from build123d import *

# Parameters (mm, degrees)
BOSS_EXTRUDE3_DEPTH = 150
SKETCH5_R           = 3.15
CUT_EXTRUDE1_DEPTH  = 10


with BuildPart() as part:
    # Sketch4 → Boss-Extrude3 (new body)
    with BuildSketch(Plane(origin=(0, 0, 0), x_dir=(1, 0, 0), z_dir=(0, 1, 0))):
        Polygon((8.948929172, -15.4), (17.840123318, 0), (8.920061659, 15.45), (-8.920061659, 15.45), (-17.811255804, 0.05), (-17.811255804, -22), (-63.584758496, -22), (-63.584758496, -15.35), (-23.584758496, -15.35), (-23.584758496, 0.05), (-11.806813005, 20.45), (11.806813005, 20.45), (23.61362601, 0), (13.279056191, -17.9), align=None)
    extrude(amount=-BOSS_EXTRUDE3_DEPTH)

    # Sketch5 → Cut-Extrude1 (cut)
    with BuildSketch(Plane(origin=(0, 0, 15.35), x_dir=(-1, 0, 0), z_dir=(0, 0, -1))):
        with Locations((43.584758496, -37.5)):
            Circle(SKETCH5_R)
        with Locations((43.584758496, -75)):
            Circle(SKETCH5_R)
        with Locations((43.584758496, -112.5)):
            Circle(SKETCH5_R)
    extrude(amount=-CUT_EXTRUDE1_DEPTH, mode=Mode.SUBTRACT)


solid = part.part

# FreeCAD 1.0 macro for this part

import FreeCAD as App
import Part
import Sketcher
from FreeCAD import Vector
Q = App.Units.Quantity

doc = App.newDocument("Part")
body = doc.addObject("PartDesign::Body", "Body")

# Sketch on XZ plane
sketch1 = body.newObject("Sketcher::SketchObject", "Sketch")
sketch1.AttachmentSupport = (doc.getObject("XZ_Plane"), [""])
sketch1.MapMode = "FlatFace"
sketch1.addGeometry([
    Part.LineSegment(Vector(18, 0, 0), Vector(9, 15, 0)),  # 0
    Part.LineSegment(Vector(9, 15, 0), Vector(13, 18, 0)),  # 1
    Part.LineSegment(Vector(13, 18, 0), Vector(24, 0, 0)),  # 2
    Part.LineSegment(Vector(24, 0, 0), Vector(12, -20, 0)),  # 3
    Part.LineSegment(Vector(12, -20, 0), Vector(-12, -20, 0)),  # 4
    Part.LineSegment(Vector(-12, -20, 0), Vector(-24, 0, 0)),  # 5
    Part.LineSegment(Vector(-24, 0, 0), Vector(-24, 15, 0)),  # 6
    Part.LineSegment(Vector(-24, 15, 0), Vector(-64, 15, 0)),  # 7
    Part.LineSegment(Vector(-64, 15, 0), Vector(-64, 22, 0)),  # 8
    Part.LineSegment(Vector(-64, 22, 0), Vector(-18, 22, 0)),  # 9
    Part.LineSegment(Vector(-18, 22, 0), Vector(-18, 0, 0)),  # 10
    Part.LineSegment(Vector(-18, 0, 0), Vector(-9, -15, 0)),  # 11
    Part.LineSegment(Vector(-9, -15, 0), Vector(9, -15, 0)),  # 12
    Part.LineSegment(Vector(9, -15, 0), Vector(18, 0, 0)),  # 13
], False)
sketch1.addConstraint([
    Sketcher.Constraint("Coincident", 0, 2, 1, 1),
    Sketcher.Constraint("Coincident", 1, 2, 2, 1),
    Sketcher.Constraint("Coincident", 2, 2, 3, 1),
    Sketcher.Constraint("Coincident", 3, 2, 4, 1),
    Sketcher.Constraint("Coincident", 4, 2, 5, 1),
    Sketcher.Constraint("Coincident", 5, 2, 6, 1),
    Sketcher.Constraint("Coincident", 6, 2, 7, 1),
    Sketcher.Constraint("Coincident", 7, 2, 8, 1),
    Sketcher.Constraint("Coincident", 8, 2, 9, 1),
    Sketcher.Constraint("Coincident", 9, 2, 10, 1),
    Sketcher.Constraint("Coincident", 10, 2, 11, 1),
    Sketcher.Constraint("Coincident", 11, 2, 12, 1),
    Sketcher.Constraint("Coincident", 12, 2, 13, 1),
    Sketcher.Constraint("Coincident", 13, 2, 0, 1),
    Sketcher.Constraint("Horizontal", 4),
    Sketcher.Constraint("Vertical", 6),
    Sketcher.Constraint("Horizontal", 7),
    Sketcher.Constraint("Vertical", 8),
    Sketcher.Constraint("Horizontal", 9),
    Sketcher.Constraint("Vertical", 10),
    Sketcher.Constraint("Horizontal", 12),
    Sketcher.Constraint("PointOnObject", 2, 2, -1),
    Sketcher.Constraint("PointOnObject", 13, 2, -1),
    Sketcher.Constraint("Perpendicular", 0, 1),
    Sketcher.Constraint("Perpendicular", 1, 2),
    Sketcher.Constraint("Parallel", 2, 5),
    Sketcher.Constraint("Parallel", 5, 11),
    Sketcher.Constraint("Parallel", 3, 13),
    Sketcher.Constraint("Horizontal", 5, 2, 10, 2),
    Sketcher.Constraint("Equal", 0, 11),
    Sketcher.Constraint("DistanceX", 7, 2, 7, 1, Q("40 mm")),
    Sketcher.Constraint("Angle", 0, Q("120 deg")),
    Sketcher.Constraint("Angle", 3, Q("-120 deg")),
    Sketcher.Constraint("Distance", 1, Q("5 mm")),
    Sketcher.Constraint("DistanceY", 6, 1, 6, 2, Q("15.4 mm")),
    Sketcher.Constraint("DistanceY", -1, 1, 8, 2, Q("22 mm")),
    Sketcher.Constraint("DistanceY", 4, 2, 11, 2, Q("5 mm")),
    Sketcher.Constraint("DistanceY", 8, 1, 8, 2, Q("6.65 mm")),
    Sketcher.Constraint("DistanceY", -1, 1, 0, 2, Q("15.4 mm")),
    Sketcher.Constraint("DistanceX", 4, 2, 4, 1, Q("23.613626 mm")),
    Sketcher.Constraint("DistanceX", 9, 1, 9, 2, Q("45.773503 mm")),
    Sketcher.Constraint("DistanceX", -1, 1, 0, 2, Q("8.948929 mm")),
])
pad1 = body.newObject("PartDesign::Pad", "Pad")
pad1.Profile = sketch1
pad1.Length = 150

# Sketch on XY plane
sketch2 = body.newObject("Sketcher::SketchObject", "Sketch001")
sketch2.AttachmentSupport = (doc.getObject("XY_Plane"), [""])
sketch2.MapMode = "FlatFace"
sketch2.AttachmentOffset = App.Placement(Vector(0, 0, 15.35), App.Rotation())
sketch2.addGeometry([
    Part.Circle(Vector(-43.6, -37.5, 0), Vector(0, 0, 1), 3.1),
    Part.Circle(Vector(-43.6, -75, 0), Vector(0, 0, 1), 3.1),
    Part.Circle(Vector(-43.6, -112.5, 0), Vector(0, 0, 1), 3.1),
], False)
sketch2.addConstraint([
    Sketcher.Constraint("Equal", 0, 1),
    Sketcher.Constraint("Equal", 1, 2),
    Sketcher.Constraint("Vertical", 0, 3, 1, 3),
    Sketcher.Constraint("Vertical", 1, 3, 2, 3),
    Sketcher.Constraint("Diameter", 0, Q("6.3 mm")),
    Sketcher.Constraint("DistanceY", 1, 3, -1, 1, Q("75 mm")),
    Sketcher.Constraint("DistanceY", 2, 3, 0, 3, Q("75 mm")),
    Sketcher.Constraint("DistanceY", 0, 3, -1, 1, Q("37.5 mm")),
    Sketcher.Constraint("DistanceX", 0, 3, -1, 1, Q("43.584758 mm")),
])
pocket1 = body.newObject("PartDesign::Pocket", "Pocket")
pocket1.Profile = sketch2
pocket1.Length = 10
pocket1.Reversed = True

doc.recompute()
